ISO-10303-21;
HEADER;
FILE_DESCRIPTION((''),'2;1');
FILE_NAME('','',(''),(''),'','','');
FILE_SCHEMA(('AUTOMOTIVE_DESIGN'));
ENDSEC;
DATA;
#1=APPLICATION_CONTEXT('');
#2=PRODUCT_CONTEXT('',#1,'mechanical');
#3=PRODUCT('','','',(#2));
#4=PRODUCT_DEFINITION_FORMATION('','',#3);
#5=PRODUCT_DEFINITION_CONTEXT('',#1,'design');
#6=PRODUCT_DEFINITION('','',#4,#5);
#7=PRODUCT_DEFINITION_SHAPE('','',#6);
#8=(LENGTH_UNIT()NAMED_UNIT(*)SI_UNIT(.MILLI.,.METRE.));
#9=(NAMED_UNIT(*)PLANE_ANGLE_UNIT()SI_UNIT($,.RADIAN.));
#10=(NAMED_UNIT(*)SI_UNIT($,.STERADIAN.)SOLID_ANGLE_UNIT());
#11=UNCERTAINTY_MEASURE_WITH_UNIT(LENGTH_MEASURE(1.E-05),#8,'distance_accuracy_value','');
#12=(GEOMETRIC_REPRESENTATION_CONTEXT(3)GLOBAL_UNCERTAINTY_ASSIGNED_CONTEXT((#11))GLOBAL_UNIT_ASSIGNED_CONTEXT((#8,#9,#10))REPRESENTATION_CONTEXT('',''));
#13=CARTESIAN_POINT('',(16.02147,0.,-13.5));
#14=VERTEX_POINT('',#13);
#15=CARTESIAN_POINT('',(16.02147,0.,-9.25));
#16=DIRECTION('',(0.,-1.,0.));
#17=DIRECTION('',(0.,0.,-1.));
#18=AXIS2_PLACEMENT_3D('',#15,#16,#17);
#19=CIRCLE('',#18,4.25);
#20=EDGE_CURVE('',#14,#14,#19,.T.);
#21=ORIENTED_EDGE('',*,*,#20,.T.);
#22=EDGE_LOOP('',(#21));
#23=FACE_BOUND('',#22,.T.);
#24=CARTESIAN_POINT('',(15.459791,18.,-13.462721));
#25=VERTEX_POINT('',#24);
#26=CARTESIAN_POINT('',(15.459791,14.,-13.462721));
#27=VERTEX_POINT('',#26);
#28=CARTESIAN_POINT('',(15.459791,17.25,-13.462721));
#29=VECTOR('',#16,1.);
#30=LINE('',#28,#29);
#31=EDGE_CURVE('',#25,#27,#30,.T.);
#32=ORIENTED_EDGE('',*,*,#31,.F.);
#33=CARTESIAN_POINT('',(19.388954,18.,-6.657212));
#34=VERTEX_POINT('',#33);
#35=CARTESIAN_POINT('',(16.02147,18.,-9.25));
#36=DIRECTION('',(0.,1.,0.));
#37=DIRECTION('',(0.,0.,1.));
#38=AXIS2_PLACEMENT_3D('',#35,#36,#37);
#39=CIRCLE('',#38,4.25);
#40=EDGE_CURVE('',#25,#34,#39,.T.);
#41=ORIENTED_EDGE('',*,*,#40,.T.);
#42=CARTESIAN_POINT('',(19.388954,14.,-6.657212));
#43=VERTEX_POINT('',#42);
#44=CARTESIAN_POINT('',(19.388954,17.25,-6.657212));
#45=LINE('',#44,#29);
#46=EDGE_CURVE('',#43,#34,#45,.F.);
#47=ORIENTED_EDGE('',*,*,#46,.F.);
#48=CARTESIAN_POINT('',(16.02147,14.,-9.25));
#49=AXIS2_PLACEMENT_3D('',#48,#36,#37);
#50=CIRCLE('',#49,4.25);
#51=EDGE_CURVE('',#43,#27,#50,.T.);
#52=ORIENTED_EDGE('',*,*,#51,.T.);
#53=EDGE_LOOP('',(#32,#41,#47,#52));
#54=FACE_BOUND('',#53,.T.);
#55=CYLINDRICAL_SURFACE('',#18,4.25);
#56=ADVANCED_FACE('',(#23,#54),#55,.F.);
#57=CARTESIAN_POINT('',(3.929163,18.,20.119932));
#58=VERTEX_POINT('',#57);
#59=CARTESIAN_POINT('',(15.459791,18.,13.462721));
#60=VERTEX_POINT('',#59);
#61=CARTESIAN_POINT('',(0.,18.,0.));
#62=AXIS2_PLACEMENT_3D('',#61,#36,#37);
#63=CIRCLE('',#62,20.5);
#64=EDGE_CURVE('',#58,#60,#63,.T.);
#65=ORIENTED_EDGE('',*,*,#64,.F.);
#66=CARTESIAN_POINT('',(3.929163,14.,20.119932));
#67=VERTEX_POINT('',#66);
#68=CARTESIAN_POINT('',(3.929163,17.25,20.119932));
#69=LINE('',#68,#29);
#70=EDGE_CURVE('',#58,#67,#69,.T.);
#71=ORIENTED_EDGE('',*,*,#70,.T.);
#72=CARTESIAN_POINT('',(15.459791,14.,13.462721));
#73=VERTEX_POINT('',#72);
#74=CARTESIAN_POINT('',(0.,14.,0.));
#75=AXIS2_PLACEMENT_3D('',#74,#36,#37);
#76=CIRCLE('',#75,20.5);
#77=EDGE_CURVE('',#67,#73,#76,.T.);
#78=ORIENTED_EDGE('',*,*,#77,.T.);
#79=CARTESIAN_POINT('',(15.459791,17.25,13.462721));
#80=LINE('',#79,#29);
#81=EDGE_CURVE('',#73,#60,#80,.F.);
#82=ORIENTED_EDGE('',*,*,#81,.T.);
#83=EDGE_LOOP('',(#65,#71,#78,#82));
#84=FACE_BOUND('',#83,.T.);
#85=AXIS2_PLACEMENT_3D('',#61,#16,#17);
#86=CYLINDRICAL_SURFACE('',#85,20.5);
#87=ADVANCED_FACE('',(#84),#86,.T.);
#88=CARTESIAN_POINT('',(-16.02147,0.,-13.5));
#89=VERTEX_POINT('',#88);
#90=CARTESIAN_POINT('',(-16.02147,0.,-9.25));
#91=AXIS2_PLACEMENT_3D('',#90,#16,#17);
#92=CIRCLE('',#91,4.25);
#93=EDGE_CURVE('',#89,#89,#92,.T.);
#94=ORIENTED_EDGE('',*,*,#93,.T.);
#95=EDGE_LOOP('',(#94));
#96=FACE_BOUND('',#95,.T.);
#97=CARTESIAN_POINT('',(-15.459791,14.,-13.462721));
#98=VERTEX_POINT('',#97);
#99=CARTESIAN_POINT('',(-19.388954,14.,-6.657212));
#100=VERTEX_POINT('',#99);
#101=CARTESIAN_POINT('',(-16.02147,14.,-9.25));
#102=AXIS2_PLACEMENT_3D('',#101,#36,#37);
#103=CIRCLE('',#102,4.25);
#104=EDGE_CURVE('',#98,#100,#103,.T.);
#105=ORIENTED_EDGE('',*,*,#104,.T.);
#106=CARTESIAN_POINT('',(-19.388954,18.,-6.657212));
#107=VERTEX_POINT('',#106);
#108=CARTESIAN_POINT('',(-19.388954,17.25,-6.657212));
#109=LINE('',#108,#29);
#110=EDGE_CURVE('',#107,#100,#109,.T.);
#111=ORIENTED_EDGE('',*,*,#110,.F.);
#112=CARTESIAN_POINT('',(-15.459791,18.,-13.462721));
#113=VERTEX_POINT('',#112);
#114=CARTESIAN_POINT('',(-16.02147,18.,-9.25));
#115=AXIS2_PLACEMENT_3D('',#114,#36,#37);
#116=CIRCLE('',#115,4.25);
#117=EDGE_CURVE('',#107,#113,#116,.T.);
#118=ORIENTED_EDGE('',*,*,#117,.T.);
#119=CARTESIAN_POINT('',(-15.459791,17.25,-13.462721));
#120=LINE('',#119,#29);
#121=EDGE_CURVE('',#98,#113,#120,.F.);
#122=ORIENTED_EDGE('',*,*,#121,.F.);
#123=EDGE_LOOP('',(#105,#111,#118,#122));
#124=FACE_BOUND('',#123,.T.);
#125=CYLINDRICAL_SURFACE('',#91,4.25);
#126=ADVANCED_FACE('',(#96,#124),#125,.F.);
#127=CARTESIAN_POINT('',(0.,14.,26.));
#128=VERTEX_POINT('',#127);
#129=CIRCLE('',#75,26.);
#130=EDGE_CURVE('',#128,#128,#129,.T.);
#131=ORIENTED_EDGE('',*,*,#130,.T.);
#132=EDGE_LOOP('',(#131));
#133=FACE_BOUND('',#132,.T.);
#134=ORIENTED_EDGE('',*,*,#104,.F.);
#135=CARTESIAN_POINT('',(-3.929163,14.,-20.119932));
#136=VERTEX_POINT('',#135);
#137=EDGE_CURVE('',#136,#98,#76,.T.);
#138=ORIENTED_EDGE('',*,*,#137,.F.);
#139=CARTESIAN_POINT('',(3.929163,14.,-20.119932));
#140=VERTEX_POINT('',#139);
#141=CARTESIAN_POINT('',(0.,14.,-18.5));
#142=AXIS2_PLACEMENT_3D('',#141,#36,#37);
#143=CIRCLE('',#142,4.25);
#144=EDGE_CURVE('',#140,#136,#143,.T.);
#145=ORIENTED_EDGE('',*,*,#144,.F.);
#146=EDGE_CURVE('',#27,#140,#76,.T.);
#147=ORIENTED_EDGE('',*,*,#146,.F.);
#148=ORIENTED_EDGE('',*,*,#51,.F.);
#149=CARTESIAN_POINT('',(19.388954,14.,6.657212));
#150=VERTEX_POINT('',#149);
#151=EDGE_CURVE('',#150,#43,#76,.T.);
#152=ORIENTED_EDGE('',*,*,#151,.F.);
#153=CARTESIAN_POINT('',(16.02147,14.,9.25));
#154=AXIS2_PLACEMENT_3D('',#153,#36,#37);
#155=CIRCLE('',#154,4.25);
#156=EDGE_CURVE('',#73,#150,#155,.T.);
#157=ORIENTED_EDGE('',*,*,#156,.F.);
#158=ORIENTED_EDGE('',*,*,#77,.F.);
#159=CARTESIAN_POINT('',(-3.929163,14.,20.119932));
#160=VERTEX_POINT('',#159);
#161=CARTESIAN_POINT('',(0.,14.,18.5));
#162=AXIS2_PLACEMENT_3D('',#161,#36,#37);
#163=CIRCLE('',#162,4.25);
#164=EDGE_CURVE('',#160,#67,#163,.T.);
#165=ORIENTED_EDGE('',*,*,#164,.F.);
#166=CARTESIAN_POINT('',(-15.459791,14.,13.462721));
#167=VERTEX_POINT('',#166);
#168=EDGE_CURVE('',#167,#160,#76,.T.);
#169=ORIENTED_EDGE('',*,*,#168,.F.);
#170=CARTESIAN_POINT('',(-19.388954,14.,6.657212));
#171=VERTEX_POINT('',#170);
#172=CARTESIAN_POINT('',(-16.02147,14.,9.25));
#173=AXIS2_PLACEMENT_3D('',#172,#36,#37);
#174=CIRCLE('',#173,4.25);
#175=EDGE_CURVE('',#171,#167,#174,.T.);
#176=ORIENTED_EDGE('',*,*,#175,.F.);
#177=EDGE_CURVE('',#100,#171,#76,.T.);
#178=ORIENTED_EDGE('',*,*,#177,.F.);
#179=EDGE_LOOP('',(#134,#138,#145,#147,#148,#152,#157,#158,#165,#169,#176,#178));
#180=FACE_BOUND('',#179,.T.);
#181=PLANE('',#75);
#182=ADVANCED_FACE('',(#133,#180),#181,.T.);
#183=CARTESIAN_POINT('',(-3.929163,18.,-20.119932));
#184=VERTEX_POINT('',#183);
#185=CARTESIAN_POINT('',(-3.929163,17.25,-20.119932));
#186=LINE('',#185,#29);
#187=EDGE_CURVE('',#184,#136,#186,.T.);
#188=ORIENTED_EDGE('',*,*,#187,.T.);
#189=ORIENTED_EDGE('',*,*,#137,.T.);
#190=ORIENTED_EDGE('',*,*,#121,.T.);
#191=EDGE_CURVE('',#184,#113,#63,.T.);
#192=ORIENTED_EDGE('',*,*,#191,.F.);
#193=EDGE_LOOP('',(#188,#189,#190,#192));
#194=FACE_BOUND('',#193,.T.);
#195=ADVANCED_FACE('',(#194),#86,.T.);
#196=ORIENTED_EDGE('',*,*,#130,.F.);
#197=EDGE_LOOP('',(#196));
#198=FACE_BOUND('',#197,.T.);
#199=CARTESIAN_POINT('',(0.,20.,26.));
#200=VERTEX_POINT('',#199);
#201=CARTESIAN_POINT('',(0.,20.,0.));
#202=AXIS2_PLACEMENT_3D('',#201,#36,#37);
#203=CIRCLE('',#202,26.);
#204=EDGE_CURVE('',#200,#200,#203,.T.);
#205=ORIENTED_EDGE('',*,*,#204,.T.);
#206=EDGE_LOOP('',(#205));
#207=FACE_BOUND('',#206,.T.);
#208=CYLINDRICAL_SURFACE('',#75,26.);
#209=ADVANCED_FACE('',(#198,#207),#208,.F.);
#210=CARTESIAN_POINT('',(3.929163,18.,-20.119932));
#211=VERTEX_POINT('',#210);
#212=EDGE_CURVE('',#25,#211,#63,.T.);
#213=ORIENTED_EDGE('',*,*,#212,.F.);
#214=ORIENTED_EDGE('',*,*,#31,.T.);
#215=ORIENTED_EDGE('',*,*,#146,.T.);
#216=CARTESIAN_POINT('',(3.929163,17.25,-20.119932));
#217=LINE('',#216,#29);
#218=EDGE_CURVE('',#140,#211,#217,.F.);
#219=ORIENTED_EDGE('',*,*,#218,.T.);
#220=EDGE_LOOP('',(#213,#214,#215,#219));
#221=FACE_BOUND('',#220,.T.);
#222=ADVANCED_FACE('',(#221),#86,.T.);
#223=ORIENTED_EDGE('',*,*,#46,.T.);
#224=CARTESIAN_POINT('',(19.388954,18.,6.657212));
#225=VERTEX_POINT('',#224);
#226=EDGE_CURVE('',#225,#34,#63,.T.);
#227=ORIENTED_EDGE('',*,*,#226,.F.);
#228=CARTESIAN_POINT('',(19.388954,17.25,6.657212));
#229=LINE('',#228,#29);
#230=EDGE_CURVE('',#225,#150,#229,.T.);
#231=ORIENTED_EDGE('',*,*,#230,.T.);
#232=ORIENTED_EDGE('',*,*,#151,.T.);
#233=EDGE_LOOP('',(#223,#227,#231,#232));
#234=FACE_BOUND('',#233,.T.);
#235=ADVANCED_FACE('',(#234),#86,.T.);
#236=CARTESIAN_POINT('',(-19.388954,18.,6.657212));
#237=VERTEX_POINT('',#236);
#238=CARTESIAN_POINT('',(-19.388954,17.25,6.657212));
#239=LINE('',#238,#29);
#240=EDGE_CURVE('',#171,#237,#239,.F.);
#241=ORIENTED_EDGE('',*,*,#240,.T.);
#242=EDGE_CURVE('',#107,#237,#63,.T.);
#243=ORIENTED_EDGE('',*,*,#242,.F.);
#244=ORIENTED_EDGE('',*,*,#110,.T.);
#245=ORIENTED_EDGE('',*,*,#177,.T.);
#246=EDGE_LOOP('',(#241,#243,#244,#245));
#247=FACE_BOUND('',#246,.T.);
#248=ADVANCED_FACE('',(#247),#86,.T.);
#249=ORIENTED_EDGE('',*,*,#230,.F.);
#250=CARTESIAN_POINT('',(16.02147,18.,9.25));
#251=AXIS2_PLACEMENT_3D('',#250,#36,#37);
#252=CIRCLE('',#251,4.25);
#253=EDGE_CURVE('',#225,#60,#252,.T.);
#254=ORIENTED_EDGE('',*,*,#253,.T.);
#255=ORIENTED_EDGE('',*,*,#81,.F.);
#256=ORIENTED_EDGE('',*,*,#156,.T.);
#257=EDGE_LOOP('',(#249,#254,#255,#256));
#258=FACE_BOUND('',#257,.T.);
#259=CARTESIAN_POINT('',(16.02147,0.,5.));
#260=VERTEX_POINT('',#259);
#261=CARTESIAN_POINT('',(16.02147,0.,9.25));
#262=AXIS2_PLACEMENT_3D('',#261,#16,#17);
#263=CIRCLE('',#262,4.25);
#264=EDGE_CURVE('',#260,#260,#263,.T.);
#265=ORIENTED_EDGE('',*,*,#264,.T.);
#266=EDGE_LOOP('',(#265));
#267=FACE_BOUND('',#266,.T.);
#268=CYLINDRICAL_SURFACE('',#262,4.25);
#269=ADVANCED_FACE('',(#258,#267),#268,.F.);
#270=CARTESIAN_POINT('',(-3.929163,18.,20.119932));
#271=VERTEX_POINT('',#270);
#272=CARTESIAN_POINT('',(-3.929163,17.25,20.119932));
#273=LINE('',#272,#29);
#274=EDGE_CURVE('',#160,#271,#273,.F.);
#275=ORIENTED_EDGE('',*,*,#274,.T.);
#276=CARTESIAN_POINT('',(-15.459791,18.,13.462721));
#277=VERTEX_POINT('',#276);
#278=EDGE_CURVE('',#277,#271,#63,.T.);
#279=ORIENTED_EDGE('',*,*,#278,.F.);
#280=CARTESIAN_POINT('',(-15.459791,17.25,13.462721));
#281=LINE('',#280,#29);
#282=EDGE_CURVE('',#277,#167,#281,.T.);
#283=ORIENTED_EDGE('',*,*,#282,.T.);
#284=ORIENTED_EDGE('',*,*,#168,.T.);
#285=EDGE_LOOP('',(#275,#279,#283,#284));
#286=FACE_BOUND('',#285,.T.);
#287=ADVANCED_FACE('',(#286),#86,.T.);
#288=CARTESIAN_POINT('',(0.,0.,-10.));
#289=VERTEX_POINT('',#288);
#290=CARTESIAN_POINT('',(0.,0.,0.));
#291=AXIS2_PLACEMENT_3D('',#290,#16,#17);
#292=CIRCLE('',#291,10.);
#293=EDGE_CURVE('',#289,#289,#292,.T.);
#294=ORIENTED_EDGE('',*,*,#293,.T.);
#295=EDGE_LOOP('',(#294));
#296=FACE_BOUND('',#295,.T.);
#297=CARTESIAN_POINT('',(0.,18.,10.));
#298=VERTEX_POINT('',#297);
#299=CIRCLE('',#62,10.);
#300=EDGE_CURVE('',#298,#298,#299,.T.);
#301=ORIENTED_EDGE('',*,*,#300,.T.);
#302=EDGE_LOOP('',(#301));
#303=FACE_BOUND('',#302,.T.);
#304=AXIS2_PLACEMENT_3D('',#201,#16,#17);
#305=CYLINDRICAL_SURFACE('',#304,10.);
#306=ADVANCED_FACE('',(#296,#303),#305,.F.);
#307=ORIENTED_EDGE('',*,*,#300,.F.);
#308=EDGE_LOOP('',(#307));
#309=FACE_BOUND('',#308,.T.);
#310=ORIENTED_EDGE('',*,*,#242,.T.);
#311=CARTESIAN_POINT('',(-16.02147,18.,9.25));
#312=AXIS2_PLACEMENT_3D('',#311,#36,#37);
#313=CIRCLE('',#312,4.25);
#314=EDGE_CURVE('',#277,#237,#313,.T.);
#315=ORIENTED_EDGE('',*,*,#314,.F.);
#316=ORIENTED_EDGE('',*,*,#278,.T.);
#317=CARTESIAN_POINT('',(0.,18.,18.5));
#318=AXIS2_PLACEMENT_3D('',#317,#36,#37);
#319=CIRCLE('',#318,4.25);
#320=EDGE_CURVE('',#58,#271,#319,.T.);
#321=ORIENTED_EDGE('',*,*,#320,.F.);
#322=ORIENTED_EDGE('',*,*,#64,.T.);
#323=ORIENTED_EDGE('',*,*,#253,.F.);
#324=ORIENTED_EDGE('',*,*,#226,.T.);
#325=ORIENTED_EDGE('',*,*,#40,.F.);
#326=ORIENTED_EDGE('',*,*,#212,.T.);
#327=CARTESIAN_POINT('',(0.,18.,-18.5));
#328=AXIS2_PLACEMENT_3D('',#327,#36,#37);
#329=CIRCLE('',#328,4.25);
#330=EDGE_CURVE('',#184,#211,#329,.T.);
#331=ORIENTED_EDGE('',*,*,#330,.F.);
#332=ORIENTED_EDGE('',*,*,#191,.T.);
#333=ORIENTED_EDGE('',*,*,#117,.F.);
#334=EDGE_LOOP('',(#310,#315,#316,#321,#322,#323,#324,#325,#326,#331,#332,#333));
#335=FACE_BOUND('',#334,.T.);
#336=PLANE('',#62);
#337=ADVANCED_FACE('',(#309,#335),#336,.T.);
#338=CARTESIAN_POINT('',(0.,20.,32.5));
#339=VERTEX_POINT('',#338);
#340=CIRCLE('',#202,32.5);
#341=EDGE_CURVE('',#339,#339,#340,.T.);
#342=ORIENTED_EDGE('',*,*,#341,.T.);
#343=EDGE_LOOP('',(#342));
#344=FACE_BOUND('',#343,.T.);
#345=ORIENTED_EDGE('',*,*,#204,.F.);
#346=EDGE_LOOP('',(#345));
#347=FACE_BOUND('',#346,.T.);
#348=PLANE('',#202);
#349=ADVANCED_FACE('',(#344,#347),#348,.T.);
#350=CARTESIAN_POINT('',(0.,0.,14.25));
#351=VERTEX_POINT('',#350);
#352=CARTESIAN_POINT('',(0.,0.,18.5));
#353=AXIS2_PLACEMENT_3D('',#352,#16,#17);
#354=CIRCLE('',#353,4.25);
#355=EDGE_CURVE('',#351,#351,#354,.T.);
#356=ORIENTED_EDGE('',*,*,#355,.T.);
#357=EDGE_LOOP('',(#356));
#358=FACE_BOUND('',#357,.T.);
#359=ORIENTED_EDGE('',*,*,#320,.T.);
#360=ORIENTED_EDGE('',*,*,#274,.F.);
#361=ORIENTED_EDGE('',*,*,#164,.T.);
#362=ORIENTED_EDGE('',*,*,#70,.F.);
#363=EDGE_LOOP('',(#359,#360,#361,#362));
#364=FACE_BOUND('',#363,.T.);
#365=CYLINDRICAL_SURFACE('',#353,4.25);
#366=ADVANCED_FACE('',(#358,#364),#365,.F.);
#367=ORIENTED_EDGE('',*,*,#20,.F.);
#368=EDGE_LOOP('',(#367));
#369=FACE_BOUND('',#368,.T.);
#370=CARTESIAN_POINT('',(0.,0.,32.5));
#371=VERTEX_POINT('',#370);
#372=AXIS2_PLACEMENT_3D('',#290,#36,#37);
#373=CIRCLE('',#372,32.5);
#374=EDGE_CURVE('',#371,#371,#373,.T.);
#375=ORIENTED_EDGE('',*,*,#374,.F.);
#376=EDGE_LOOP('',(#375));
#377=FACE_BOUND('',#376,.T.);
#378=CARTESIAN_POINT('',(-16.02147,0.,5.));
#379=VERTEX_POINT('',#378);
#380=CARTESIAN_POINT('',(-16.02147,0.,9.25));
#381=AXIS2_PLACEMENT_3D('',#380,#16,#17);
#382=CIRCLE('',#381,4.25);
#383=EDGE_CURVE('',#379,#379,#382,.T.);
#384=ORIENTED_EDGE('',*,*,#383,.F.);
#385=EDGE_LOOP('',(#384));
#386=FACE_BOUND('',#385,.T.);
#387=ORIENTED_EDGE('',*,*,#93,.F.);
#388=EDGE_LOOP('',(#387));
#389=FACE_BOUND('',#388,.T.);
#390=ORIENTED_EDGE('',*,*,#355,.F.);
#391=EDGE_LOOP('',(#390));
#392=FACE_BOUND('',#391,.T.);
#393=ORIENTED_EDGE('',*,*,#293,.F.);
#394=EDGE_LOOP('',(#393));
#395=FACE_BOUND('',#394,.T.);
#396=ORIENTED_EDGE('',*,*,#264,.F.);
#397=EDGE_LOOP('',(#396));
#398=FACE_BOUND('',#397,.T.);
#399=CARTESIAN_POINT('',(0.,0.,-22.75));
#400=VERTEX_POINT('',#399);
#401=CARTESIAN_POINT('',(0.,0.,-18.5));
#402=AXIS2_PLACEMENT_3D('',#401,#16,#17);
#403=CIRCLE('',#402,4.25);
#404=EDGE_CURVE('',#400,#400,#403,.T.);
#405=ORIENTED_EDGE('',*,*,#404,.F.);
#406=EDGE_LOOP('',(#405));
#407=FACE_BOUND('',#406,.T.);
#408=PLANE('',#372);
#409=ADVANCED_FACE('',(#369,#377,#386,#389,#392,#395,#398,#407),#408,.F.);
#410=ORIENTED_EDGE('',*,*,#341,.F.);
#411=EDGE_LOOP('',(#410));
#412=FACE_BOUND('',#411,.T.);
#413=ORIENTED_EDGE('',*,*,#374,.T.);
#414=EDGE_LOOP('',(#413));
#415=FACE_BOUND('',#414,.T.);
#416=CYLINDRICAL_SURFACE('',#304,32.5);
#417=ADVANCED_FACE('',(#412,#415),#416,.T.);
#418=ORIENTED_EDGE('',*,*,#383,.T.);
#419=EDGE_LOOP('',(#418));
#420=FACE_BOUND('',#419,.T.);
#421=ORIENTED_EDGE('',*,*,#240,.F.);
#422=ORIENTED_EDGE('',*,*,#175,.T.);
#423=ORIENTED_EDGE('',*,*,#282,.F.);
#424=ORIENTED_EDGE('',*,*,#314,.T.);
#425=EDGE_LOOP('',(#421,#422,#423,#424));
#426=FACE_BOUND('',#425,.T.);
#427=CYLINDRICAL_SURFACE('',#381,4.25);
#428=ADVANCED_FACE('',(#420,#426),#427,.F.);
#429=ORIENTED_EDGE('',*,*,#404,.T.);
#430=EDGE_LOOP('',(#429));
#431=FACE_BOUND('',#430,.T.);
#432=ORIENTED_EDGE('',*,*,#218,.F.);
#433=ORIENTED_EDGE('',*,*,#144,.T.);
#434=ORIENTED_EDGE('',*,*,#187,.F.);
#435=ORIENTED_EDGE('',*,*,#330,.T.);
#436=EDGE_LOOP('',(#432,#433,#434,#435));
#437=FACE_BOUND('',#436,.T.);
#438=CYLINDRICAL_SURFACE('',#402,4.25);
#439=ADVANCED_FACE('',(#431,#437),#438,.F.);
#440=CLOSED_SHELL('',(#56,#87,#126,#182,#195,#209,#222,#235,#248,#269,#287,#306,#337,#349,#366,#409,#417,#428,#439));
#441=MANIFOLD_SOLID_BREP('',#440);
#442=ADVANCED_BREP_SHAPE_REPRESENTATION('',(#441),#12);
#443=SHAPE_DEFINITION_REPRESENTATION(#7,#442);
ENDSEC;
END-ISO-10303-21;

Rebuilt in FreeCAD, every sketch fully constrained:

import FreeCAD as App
import Part
import Sketcher
Q = App.Units.Quantity

doc = App.newDocument("Part")
body = doc.addObject("PartDesign::Body", "Body")

# Sketch on XZ plane
sketch1 = doc.addObject("Sketcher::SketchObject", "Sketch")
body.addObject(sketch1)
sketch1.AttachmentSupport = (doc.XZ_Plane, [""])
sketch1.MapMode = "FlatFace"
sketch1.addGeometry(Part.Circle(App.Vector(0, 0, 0), App.Vector(0, 0, 1), 32.5), False)
sketch1.addConstraint([
    Sketcher.Constraint("Coincident", 0, 3, -1, 1),
    Sketcher.Constraint("Diameter", 0, Q("65 mm")),
])
pad1 = doc.addObject("PartDesign::Pad", "Pad")
body.addObject(pad1)
pad1.Profile = sketch1
pad1.Length = 20
pad1.Reversed = True

# Sketch on XZ plane
sketch2 = doc.addObject("Sketcher::SketchObject", "Sketch001")
body.addObject(sketch2)
sketch2.AttachmentSupport = (doc.XZ_Plane, [""])
sketch2.MapMode = "FlatFace"
sketch2.AttachmentOffset = App.Placement(App.Vector(0, 0, -20), App.Rotation())
sketch2.addGeometry(Part.Circle(App.Vector(0, 0, 0), App.Vector(0, 0, 1), 26), False)
sketch2.addConstraint([
    Sketcher.Constraint("Coincident", 0, 3, -1, 1),
    Sketcher.Constraint("Diameter", 0, Q("52 mm")),
])
pocket1 = doc.addObject("PartDesign::Pocket", "Pocket")
body.addObject(pocket1)
pocket1.Profile = sketch2
pocket1.Length = 6
pocket1.Reversed = True

# Sketch on XZ plane
sketch3 = doc.addObject("Sketcher::SketchObject", "Sketch002")
body.addObject(sketch3)
sketch3.AttachmentSupport = (doc.XZ_Plane, [""])
sketch3.MapMode = "FlatFace"
sketch3.AttachmentOffset = App.Placement(App.Vector(0, 0, -14), App.Rotation())
sketch3.addGeometry(Part.Circle(App.Vector(0, 0, 0), App.Vector(0, 0, 1), 20.5), False)
sketch3.addConstraint([
    Sketcher.Constraint("Coincident", 0, 3, -1, 1),
    Sketcher.Constraint("Diameter", 0, Q("41 mm")),
])
pad2 = doc.addObject("PartDesign::Pad", "Pad001")
body.addObject(pad2)
pad2.Profile = sketch3
pad2.Length = 4
pad2.Reversed = True

# Sketch on YZ plane
sketch4 = doc.addObject("Sketcher::SketchObject", "Sketch003")
body.addObject(sketch4)
sketch4.AttachmentSupport = (doc.YZ_Plane, [""])
sketch4.MapMode = "FlatFace"
sketch4.addGeometry([
    Part.LineSegment(App.Vector(37.053658, 18.5, 0), App.Vector(0, 18.5, 0)),
    Part.LineSegment(App.Vector(0, 18.5, 0), App.Vector(0, 14.25, 0)),
    Part.LineSegment(App.Vector(0, 14.25, 0), App.Vector(34.5, 14.25, 0)),
    Part.LineSegment(App.Vector(34.5, 14.25, 0), App.Vector(37.053658, 18.5, 0)),
], False)
sketch4.addGeometry(Part.LineSegment(App.Vector(0, 18.5, 0), App.Vector(37.053658, 18.5, 0)), True)  # axis
sketch4.addConstraint([
    Sketcher.Constraint("Coincident", 0, 2, 1, 1),
    Sketcher.Constraint("Coincident", 1, 2, 2, 1),
    Sketcher.Constraint("Coincident", 2, 2, 3, 1),
    Sketcher.Constraint("Coincident", 3, 2, 0, 1),
    Sketcher.Constraint("Horizontal", 0),
    Sketcher.Constraint("Vertical", 1),
    Sketcher.Constraint("Horizontal", 2),
    Sketcher.Constraint("Horizontal", 4),
    Sketcher.Constraint("Coincident", 4, 1, 0, 2),
    Sketcher.Constraint("PointOnObject", 0, 2, -2),
    Sketcher.Constraint("Equal", 0, 4),
    Sketcher.Constraint("Angle", 3, Q("59 deg")),
    Sketcher.Constraint("DistanceX", 2, 1, 2, 2, Q("34.5 mm")),
    Sketcher.Constraint("DistanceY", 1, 2, 1, 1, Q("4.25 mm")),
    Sketcher.Constraint("DistanceY", -1, 1, 0, 2, Q("18.5 mm")),
])
groove = doc.addObject("PartDesign::Groove", "Groove")
body.addObject(groove)
groove.Profile = sketch4
groove.ReferenceAxis = (sketch4, ["Axis0"])
groove.Angle = 360

# Sketch on XZ plane
sketch5 = doc.addObject("Sketcher::SketchObject", "Sketch004")
body.addObject(sketch5)
sketch5.AttachmentSupport = (doc.XZ_Plane, [""])
sketch5.MapMode = "FlatFace"
sketch5.addGeometry(Part.Circle(App.Vector(0, 0, 0), App.Vector(0, 0, 1), 10), False)
sketch5.addConstraint([
    Sketcher.Constraint("Coincident", 0, 3, -1, 1),
    Sketcher.Constraint("Diameter", 0, Q("20 mm")),
])
pocket2 = doc.addObject("PartDesign::Pocket", "Pocket001")
body.addObject(pocket2)
pocket2.Profile = sketch5
pocket2.Type = "ThroughAll"
doc.recompute()

polarpattern = doc.addObject("PartDesign::PolarPattern", "PolarPattern")
body.addObject(polarpattern)
polarpattern.Originals = [groove]
polarpattern.Axis = (doc.Y_Axis, [""])
polarpattern.Angle = 360
polarpattern.Occurrences = 6
body.Tip = polarpattern

doc.recompute()
